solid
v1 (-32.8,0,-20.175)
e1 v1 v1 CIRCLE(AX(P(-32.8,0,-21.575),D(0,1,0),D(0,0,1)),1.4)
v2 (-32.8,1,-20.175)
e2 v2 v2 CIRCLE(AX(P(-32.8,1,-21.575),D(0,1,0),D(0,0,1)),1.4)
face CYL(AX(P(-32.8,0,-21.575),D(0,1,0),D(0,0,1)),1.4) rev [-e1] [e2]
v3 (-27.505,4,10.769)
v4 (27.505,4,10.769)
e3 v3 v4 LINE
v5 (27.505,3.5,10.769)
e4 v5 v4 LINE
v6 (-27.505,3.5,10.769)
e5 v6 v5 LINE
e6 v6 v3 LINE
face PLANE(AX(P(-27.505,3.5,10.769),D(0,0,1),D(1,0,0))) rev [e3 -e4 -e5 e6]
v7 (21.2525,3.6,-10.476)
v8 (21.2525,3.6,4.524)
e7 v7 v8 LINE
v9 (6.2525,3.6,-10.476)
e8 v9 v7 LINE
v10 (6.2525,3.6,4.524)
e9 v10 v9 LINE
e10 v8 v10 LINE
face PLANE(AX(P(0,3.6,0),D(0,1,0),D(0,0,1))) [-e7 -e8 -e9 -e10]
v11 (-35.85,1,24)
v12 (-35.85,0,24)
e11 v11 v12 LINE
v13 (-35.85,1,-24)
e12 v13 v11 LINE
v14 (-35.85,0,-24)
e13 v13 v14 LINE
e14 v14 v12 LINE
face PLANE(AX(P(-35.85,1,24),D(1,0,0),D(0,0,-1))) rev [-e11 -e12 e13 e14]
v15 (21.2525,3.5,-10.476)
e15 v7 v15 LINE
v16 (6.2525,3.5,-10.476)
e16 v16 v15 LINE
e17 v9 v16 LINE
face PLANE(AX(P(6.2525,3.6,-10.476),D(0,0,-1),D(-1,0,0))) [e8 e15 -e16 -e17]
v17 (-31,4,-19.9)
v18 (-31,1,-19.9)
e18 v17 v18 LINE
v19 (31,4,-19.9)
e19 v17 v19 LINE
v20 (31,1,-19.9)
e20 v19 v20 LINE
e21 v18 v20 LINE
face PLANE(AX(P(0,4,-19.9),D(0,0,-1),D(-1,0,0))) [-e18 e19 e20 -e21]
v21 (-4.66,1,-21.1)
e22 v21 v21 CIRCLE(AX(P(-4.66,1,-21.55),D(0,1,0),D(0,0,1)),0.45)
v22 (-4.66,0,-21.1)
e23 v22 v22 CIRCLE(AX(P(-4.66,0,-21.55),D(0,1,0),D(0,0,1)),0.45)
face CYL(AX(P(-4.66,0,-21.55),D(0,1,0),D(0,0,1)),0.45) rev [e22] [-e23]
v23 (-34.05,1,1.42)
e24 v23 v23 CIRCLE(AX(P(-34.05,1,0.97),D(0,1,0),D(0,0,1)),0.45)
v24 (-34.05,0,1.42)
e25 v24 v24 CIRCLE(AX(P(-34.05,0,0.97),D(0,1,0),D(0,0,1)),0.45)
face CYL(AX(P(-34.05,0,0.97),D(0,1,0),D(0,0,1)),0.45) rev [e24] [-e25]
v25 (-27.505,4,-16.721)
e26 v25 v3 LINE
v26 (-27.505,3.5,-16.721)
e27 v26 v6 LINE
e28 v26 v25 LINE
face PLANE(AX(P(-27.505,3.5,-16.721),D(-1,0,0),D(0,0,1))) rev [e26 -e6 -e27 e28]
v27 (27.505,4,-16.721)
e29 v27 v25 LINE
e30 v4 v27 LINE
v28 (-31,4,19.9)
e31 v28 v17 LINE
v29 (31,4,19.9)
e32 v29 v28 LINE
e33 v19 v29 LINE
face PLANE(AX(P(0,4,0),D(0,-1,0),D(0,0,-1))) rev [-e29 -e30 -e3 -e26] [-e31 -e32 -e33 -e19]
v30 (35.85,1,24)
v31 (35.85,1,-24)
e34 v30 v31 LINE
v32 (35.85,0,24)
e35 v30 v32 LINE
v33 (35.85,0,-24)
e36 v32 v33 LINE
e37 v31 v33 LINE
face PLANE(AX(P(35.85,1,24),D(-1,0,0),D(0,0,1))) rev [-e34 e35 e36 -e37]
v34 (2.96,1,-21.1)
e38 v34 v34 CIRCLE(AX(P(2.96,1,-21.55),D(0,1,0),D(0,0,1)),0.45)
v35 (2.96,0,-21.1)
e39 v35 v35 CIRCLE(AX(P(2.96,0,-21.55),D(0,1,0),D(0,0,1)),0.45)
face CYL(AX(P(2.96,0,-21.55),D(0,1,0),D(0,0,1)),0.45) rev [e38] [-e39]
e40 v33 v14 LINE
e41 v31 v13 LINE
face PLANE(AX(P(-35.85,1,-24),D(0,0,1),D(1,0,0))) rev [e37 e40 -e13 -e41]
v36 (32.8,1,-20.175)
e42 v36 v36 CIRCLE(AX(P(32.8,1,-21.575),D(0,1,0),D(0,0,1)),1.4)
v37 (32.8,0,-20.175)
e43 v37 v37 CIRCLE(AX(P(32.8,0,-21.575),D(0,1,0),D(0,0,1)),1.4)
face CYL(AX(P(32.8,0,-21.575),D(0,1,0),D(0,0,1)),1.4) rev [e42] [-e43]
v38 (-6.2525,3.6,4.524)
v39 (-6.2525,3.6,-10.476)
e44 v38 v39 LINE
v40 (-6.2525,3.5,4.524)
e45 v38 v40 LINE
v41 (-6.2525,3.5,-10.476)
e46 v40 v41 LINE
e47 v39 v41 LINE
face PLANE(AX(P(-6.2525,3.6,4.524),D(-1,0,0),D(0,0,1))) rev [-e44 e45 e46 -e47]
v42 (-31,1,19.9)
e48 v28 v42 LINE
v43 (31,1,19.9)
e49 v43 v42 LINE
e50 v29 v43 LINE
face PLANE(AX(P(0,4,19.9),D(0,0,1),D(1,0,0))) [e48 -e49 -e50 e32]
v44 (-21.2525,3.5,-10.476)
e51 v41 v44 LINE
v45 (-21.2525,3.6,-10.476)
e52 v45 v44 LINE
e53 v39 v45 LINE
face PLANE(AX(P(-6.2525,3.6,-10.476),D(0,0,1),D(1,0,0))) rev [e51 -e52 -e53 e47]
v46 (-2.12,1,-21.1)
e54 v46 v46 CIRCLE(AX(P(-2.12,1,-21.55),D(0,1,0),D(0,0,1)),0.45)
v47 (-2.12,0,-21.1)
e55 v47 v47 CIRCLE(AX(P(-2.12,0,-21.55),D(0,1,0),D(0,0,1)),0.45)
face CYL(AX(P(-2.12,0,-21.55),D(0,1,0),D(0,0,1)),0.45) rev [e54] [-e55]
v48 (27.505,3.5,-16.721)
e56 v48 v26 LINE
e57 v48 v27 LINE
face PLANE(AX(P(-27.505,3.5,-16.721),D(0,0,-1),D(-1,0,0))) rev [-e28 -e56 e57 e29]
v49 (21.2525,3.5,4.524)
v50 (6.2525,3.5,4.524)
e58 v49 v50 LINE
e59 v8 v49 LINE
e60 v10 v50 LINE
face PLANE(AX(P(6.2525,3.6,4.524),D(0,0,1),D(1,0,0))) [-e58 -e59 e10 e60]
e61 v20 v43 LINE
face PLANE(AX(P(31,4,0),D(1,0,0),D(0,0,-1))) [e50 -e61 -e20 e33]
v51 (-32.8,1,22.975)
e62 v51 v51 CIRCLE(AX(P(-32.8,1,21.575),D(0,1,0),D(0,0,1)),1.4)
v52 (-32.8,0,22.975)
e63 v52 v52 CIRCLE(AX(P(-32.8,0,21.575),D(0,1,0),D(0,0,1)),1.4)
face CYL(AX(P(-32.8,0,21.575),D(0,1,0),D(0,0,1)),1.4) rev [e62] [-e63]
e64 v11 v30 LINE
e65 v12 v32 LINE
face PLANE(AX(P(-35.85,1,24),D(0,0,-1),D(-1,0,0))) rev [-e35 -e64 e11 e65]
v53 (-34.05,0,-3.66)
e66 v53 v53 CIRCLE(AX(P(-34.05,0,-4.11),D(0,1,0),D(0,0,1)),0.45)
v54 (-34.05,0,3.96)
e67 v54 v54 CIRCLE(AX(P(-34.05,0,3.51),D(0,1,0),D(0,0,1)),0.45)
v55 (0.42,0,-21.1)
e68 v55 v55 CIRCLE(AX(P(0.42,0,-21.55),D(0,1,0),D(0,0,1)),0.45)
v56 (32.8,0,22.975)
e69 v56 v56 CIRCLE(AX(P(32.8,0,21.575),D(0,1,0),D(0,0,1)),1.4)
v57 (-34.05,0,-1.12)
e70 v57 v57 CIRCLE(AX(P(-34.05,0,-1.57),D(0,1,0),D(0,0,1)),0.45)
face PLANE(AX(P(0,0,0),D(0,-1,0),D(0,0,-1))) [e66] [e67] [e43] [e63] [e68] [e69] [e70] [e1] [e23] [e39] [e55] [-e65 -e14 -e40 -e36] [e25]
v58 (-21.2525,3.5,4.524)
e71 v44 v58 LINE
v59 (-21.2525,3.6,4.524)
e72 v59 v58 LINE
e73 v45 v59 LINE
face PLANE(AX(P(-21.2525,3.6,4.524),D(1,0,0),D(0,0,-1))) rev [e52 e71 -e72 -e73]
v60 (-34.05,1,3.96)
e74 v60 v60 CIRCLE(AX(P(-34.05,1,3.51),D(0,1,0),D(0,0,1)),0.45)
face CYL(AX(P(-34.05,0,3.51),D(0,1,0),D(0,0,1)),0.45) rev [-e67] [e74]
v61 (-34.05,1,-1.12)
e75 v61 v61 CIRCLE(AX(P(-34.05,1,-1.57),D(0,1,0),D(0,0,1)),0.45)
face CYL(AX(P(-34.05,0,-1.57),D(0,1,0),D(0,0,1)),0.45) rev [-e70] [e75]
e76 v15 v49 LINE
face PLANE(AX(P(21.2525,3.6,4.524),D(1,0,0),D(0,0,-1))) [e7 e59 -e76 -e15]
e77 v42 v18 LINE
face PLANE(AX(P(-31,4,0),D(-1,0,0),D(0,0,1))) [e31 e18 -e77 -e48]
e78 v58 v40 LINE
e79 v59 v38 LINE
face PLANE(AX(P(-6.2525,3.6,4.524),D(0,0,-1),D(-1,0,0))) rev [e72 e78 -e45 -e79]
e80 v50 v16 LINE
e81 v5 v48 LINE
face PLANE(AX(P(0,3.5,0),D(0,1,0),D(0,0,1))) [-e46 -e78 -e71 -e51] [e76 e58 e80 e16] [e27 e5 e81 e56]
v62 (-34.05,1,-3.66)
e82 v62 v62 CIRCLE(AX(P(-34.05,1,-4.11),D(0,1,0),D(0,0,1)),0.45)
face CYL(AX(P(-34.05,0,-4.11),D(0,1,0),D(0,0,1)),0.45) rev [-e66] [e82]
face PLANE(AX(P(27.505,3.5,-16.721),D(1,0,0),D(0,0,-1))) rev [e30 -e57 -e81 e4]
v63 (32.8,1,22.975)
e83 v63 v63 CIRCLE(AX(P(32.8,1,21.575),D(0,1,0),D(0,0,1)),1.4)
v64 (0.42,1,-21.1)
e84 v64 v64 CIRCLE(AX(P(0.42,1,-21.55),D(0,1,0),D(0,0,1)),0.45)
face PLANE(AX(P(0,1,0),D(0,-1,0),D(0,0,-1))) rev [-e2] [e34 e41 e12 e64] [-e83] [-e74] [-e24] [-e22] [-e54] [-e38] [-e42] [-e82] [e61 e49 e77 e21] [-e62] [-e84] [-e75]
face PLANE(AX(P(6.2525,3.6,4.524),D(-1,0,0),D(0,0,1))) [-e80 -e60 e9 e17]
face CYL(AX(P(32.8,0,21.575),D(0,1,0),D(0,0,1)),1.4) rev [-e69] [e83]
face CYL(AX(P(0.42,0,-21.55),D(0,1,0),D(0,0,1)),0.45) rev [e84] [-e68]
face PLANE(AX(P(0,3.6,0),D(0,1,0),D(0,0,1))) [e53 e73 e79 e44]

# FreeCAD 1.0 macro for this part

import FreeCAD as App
import Part
import Sketcher

V = App.Vector
Q = App.Units.Quantity

doc = App.newDocument("Part")
body = doc.addObject("PartDesign::Body", "Body")

# Sketch on XZ plane
sketch1 = body.newObject("Sketcher::SketchObject", "Sketch")
sketch1.AttachmentSupport = (doc.getObject("XZ_Plane"), [""])
sketch1.MapMode = "FlatFace"
sketch1.addGeometry([
    Part.LineSegment(V(-36, -24, 0), V(-36, 24, 0)),
    Part.LineSegment(V(-36, 24, 0), V(36, 24, 0)),
    Part.LineSegment(V(36, 24, 0), V(36, -24, 0)),
    Part.LineSegment(V(36, -24, 0), V(-36, -24, 0)),
], False)
sketch1.addConstraint([
    Sketcher.Constraint("Coincident", 0, 2, 1, 1),
    Sketcher.Constraint("Coincident", 1, 2, 2, 1),
    Sketcher.Constraint("Coincident", 2, 2, 3, 1),
    Sketcher.Constraint("Coincident", 3, 2, 0, 1),
    Sketcher.Constraint("Vertical", 0),
    Sketcher.Constraint("Horizontal", 1),
    Sketcher.Constraint("Vertical", 2),
    Sketcher.Constraint("Horizontal", 3),
    Sketcher.Constraint("Symmetric", 0, 2, 2, 2, -1, 1),
    Sketcher.Constraint("DistanceY", 0, 1, 0, 2, Q("48 mm")),
    Sketcher.Constraint("DistanceX", 1, 1, 1, 2, Q("71.7 mm")),
])
pad1 = body.newObject("PartDesign::Pad", "Pad")
pad1.Profile = sketch1
pad1.Length = 1
pad1.Reversed = True

# Sketch on XZ plane
sketch2 = body.newObject("Sketcher::SketchObject", "Sketch001")
sketch2.AttachmentSupport = (doc.getObject("XZ_Plane"), [""])
sketch2.MapMode = "FlatFace"
sketch2.AttachmentOffset = App.Placement(V(0, 0, -1), App.Rotation())
sketch2.addGeometry([
    Part.Circle(V(-32.8, -21.6, 0), V(0, 0, 1), 1.4),
    Part.Circle(V(32.8, -21.6, 0), V(0, 0, 1), 1.4),
    Part.Circle(V(-32.8, 21.6, 0), V(0, 0, 1), 1.4),
    Part.Circle(V(32.8, 21.6, 0), V(0, 0, 1), 1.4),
], False)
sketch2.addConstraint([
    Sketcher.Constraint("Equal", 0, 1),
    Sketcher.Constraint("Equal", 1, 2),
    Sketcher.Constraint("Equal", 2, 3),
    Sketcher.Constraint("Symmetric", 1, 3, 2, 3, -1, 1),
    Sketcher.Constraint("Symmetric", 0, 3, 3, 3, -1, 1),
    Sketcher.Constraint("Symmetric", 0, 3, 1, 3, -2),
    Sketcher.Constraint("Diameter", 0, Q("2.8 mm")),
    Sketcher.Constraint("DistanceX", 0, 3, -1, 1, Q("32.8 mm")),
    Sketcher.Constraint("DistanceY", 0, 3, 2, 3, Q("43.15 mm")),
])
pocket1 = body.newObject("PartDesign::Pocket", "Pocket")
pocket1.Profile = sketch2
pocket1.Type = "ThroughAll"
pocket1.Reversed = True

# Sketch on XZ plane
sketch3 = body.newObject("Sketcher::SketchObject", "Sketch002")
sketch3.AttachmentSupport = (doc.getObject("XZ_Plane"), [""])
sketch3.MapMode = "FlatFace"
sketch3.addGeometry([
    Part.LineSegment(V(-31, -20, 0), V(-31, 20, 0)),
    Part.LineSegment(V(-31, 20, 0), V(31, 20, 0)),
    Part.LineSegment(V(31, 20, 0), V(31, -20, 0)),
    Part.LineSegment(V(31, -20, 0), V(-31, -20, 0)),
], False)
sketch3.addConstraint([
    Sketcher.Constraint("Coincident", 0, 2, 1, 1),
    Sketcher.Constraint("Coincident", 1, 2, 2, 1),
    Sketcher.Constraint("Coincident", 2, 2, 3, 1),
    Sketcher.Constraint("Coincident", 3, 2, 0, 1),
    Sketcher.Constraint("Vertical", 0),
    Sketcher.Constraint("Horizontal", 1),
    Sketcher.Constraint("Vertical", 2),
    Sketcher.Constraint("Horizontal", 3),
    Sketcher.Constraint("Symmetric", 0, 2, 2, 2, -1, 1),
    Sketcher.Constraint("DistanceX", 1, 1, 1, 2, Q("62 mm")),
    Sketcher.Constraint("DistanceY", 0, 1, 0, 2, Q("39.8 mm")),
])
pad2 = body.newObject("PartDesign::Pad", "Pad001")
pad2.Profile = sketch3
pad2.Length = 4
pad2.Reversed = True

# Sketch on XZ plane
sketch4 = body.newObject("Sketcher::SketchObject", "Sketch003")
sketch4.AttachmentSupport = (doc.getObject("XZ_Plane"), [""])
sketch4.MapMode = "FlatFace"
sketch4.AttachmentOffset = App.Placement(V(0, 0, -4), App.Rotation())
sketch4.addGeometry([
    Part.LineSegment(V(-28, -17, 0), V(-28, 11, 0)),
    Part.LineSegment(V(-28, 11, 0), V(28, 11, 0)),
    Part.LineSegment(V(28, 11, 0), V(28, -17, 0)),
    Part.LineSegment(V(28, -17, 0), V(-28, -17, 0)),
], False)
sketch4.addConstraint([
    Sketcher.Constraint("Coincident", 0, 2, 1, 1),
    Sketcher.Constraint("Coincident", 1, 2, 2, 1),
    Sketcher.Constraint("Coincident", 2, 2, 3, 1),
    Sketcher.Constraint("Coincident", 3, 2, 0, 1),
    Sketcher.Constraint("Vertical", 0),
    Sketcher.Constraint("Horizontal", 1),
    Sketcher.Constraint("Vertical", 2),
    Sketcher.Constraint("Horizontal", 3),
    Sketcher.Constraint("DistanceX", 1, 1, 1, 2, Q("55.01 mm")),
    Sketcher.Constraint("DistanceY", 0, 1, 0, 2, Q("27.49 mm")),
    Sketcher.Constraint("DistanceX", 0, 2, -1, 1, Q("27.505 mm")),
    Sketcher.Constraint("DistanceY", -1, 1, 0, 2, Q("10.769 mm")),
])
pocket2 = body.newObject("PartDesign::Pocket", "Pocket001")
pocket2.Profile = sketch4
pocket2.Length = 0.5
pocket2.Reversed = True

# Sketch on XZ plane
sketch5 = body.newObject("Sketcher::SketchObject", "Sketch004")
sketch5.AttachmentSupport = (doc.getObject("XZ_Plane"), [""])
sketch5.MapMode = "FlatFace"
sketch5.AttachmentOffset = App.Placement(V(0, 0, -1), App.Rotation())
sketch5.addGeometry(Part.Circle(V(-4.66, -21.55, 0), V(0, 0, 1), 0.45), False)
sketch5.addConstraint([
    Sketcher.Constraint("Diameter", 0, Q("0.9 mm")),
    Sketcher.Constraint("DistanceX", 0, 3, -1, 1, Q("4.66 mm")),
    Sketcher.Constraint("DistanceY", 0, 3, -1, 1, Q("21.55 mm")),
])
pocket3 = body.newObject("PartDesign::Pocket", "Pocket002")
pocket3.Profile = sketch5
pocket3.Type = "ThroughAll"
pocket3.Reversed = True
doc.recompute()

linearpattern = body.newObject("PartDesign::LinearPattern", "LinearPattern")
linearpattern.Originals = [pocket3]
linearpattern.Direction = (doc.getObject("X_Axis"), [""])
linearpattern.Mode = "offset"
linearpattern.Offset = 2.54
linearpattern.Occurrences = 4
body.Tip = linearpattern

# Sketch on XZ plane
sketch6 = body.newObject("Sketcher::SketchObject", "Sketch005")
sketch6.AttachmentSupport = (doc.getObject("XZ_Plane"), [""])
sketch6.MapMode = "FlatFace"
sketch6.AttachmentOffset = App.Placement(V(0, 0, -1), App.Rotation())
sketch6.addGeometry(Part.Circle(V(-34.05, -4.11, 0), V(0, 0, 1), 0.45), False)
sketch6.addConstraint([
    Sketcher.Constraint("Diameter", 0, Q("0.9 mm")),
    Sketcher.Constraint("DistanceX", 0, 3, -1, 1, Q("34.05 mm")),
    Sketcher.Constraint("DistanceY", 0, 3, -1, 1, Q("4.11 mm")),
])
pocket4 = body.newObject("PartDesign::Pocket", "Pocket003")
pocket4.Profile = sketch6
pocket4.Type = "ThroughAll"
pocket4.Reversed = True
doc.recompute()

linearpattern2 = body.newObject("PartDesign::LinearPattern", "LinearPattern001")
linearpattern2.Originals = [pocket4]
linearpattern2.Direction = (doc.getObject("Z_Axis"), [""])
linearpattern2.Mode = "offset"
linearpattern2.Offset = 2.54
linearpattern2.Occurrences = 4
body.Tip = linearpattern2

# Sketch on XZ plane
sketch7 = body.newObject("Sketcher::SketchObject", "Sketch006")
sketch7.AttachmentSupport = (doc.getObject("XZ_Plane"), [""])
sketch7.MapMode = "FlatFace"
sketch7.AttachmentOffset = App.Placement(V(0, 0, -3.5), App.Rotation())
sketch7.addGeometry([
    Part.LineSegment(V(-21, -10, 0), V(-21, 5, 0)),
    Part.LineSegment(V(-21, 5, 0), V(-6, 5, 0)),
    Part.LineSegment(V(-6, 5, 0), V(-6, -10, 0)),
    Part.LineSegment(V(-6, -10, 0), V(-21, -10, 0)),
], False)
sketch7.addConstraint([
    Sketcher.Constraint("Coincident", 0, 2, 1, 1),
    Sketcher.Constraint("Coincident", 1, 2, 2, 1),
    Sketcher.Constraint("Coincident", 2, 2, 3, 1),
    Sketcher.Constraint("Coincident", 3, 2, 0, 1),
    Sketcher.Constraint("Vertical", 0),
    Sketcher.Constraint("Horizontal", 1),
    Sketcher.Constraint("Vertical", 2),
    Sketcher.Constraint("Horizontal", 3),
    Sketcher.Constraint("Equal", 3, 0),
    Sketcher.Constraint("DistanceX", 1, 1, 1, 2, Q("15 mm")),
    Sketcher.Constraint("DistanceY", -1, 1, 0, 2, Q("4.524 mm")),
    Sketcher.Constraint("DistanceX", 0, 2, -1, 1, Q("21.2525 mm")),
])
pad3 = body.newObject("PartDesign::Pad", "Pad002")
pad3.Profile = sketch7
pad3.Length = 0.1
pad3.Reversed = True
doc.recompute()

mirrored = body.newObject("PartDesign::Mirrored", "Mirrored")
mirrored.Originals = [pad3]
mirrored.MirrorPlane = (doc.getObject("YZ_Plane"), [""])
body.Tip = mirrored

doc.recompute()
